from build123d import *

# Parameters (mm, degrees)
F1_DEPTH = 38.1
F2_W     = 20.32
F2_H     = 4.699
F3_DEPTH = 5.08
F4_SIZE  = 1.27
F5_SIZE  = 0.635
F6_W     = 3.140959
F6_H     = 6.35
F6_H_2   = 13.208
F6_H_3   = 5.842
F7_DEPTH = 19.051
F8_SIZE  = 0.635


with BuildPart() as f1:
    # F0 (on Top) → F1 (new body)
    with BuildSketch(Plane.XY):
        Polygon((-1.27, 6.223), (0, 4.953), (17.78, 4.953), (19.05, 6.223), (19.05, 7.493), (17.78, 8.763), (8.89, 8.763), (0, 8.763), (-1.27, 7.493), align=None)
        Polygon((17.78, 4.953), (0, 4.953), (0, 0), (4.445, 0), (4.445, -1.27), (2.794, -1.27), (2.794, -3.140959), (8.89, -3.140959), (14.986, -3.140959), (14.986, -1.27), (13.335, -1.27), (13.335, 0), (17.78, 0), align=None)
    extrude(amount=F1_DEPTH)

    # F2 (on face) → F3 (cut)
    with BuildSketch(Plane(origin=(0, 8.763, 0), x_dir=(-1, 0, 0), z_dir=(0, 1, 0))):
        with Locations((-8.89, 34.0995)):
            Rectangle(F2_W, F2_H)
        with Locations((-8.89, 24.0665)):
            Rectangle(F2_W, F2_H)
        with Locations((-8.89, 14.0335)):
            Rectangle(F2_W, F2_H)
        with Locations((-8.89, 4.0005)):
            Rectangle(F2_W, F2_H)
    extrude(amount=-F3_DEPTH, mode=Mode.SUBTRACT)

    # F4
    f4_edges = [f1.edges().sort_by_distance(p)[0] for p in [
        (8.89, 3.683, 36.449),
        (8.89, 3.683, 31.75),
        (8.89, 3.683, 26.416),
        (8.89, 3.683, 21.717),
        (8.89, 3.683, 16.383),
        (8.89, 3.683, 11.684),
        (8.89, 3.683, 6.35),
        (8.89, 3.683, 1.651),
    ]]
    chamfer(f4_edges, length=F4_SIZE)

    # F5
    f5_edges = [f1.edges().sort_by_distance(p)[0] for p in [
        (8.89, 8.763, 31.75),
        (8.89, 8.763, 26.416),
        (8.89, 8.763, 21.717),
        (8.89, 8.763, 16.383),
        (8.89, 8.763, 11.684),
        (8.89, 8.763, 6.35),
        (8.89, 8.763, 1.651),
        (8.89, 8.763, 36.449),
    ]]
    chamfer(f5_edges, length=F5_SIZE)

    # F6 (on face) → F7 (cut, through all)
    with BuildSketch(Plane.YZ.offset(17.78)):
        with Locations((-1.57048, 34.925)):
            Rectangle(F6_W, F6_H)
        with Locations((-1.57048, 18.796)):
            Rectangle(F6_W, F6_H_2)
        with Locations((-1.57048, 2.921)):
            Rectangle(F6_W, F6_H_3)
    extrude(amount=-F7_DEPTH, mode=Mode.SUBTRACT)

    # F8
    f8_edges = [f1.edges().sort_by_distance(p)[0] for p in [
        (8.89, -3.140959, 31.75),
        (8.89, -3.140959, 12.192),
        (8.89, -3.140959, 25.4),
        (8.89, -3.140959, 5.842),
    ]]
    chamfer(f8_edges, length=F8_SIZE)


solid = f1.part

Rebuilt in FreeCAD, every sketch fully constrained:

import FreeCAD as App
import Part
import Sketcher
from FreeCAD import Vector
Q = App.Units.Quantity


def edges_at(feature, points):
    """Names of the edges that pass closest to the given points."""
    edges = feature.Shape.Edges
    near = lambda p: min(range(len(edges)), key=lambda i: edges[i].distToShape(Part.Vertex(*p))[0])
    return sorted({f"Edge{near(p) + 1}" for p in points})

doc = App.newDocument("Part")
body = doc.addObject("PartDesign::Body", "Body")

sketch1 = body.newObject("Sketcher::SketchObject", "Sketch")
sketch1.AttachmentSupport = (doc.getObject("XY_Plane"), [""])
sketch1.MapMode = "FlatFace"
sketch1.addGeometry([
    Part.LineSegment(Vector(-1.3, 6.2, 0), Vector(0, 5, 0)),
    Part.LineSegment(Vector(0, 5, 0), Vector(0, 0, 0)),
    Part.LineSegment(Vector(0, 0, 0), Vector(4.4, 0, 0)),
    Part.LineSegment(Vector(4.4, 0, 0), Vector(4.4, -1.3, 0)),
    Part.LineSegment(Vector(4.4, -1.3, 0), Vector(2.8, -1.3, 0)),
    Part.LineSegment(Vector(2.8, -1.3, 0), Vector(2.8, -3.1, 0)),
    Part.LineSegment(Vector(2.8, -3.1, 0), Vector(15, -3.1, 0)),
    Part.LineSegment(Vector(15, -3.1, 0), Vector(15, -1.3, 0)),
    Part.LineSegment(Vector(15, -1.3, 0), Vector(13.3, -1.3, 0)),
    Part.LineSegment(Vector(13.3, -1.3, 0), Vector(13.3, 0, 0)),
    Part.LineSegment(Vector(13.3, 0, 0), Vector(17.8, 0, 0)),
    Part.LineSegment(Vector(17.8, 0, 0), Vector(17.8, 5, 0)),
    Part.LineSegment(Vector(17.8, 5, 0), Vector(19.1, 6.2, 0)),
    Part.LineSegment(Vector(19.1, 6.2, 0), Vector(19.1, 7.5, 0)),
    Part.LineSegment(Vector(19.1, 7.5, 0), Vector(17.8, 8.8, 0)),
    Part.LineSegment(Vector(17.8, 8.8, 0), Vector(0, 8.8, 0)),
    Part.LineSegment(Vector(0, 8.8, 0), Vector(-1.3, 7.5, 0)),
    Part.LineSegment(Vector(-1.3, 7.5, 0), Vector(-1.3, 6.2, 0)),
], False)
sketch1.addConstraint([
    Sketcher.Constraint("Coincident", 0, 2, 1, 1),
    Sketcher.Constraint("Coincident", 1, 2, 2, 1),
    Sketcher.Constraint("Coincident", 2, 2, 3, 1),
    Sketcher.Constraint("Coincident", 3, 2, 4, 1),
    Sketcher.Constraint("Coincident", 4, 2, 5, 1),
    Sketcher.Constraint("Coincident", 5, 2, 6, 1),
    Sketcher.Constraint("Coincident", 6, 2, 7, 1),
    Sketcher.Constraint("Coincident", 7, 2, 8, 1),
    Sketcher.Constraint("Coincident", 8, 2, 9, 1),
    Sketcher.Constraint("Coincident", 9, 2, 10, 1),
    Sketcher.Constraint("Coincident", 10, 2, 11, 1),
    Sketcher.Constraint("Coincident", 11, 2, 12, 1),
    Sketcher.Constraint("Coincident", 12, 2, 13, 1),
    Sketcher.Constraint("Coincident", 13, 2, 14, 1),
    Sketcher.Constraint("Coincident", 14, 2, 15, 1),
    Sketcher.Constraint("Coincident", 15, 2, 16, 1),
    Sketcher.Constraint("Coincident", 16, 2, 17, 1),
    Sketcher.Constraint("Coincident", 17, 2, 0, 1),
    Sketcher.Constraint("Vertical", 1),
    Sketcher.Constraint("Horizontal", 2),
    Sketcher.Constraint("Vertical", 3),
    Sketcher.Constraint("Horizontal", 4),
    Sketcher.Constraint("Vertical", 5),
    Sketcher.Constraint("Horizontal", 6),
    Sketcher.Constraint("Vertical", 7),
    Sketcher.Constraint("Horizontal", 8),
    Sketcher.Constraint("Vertical", 9),
    Sketcher.Constraint("Horizontal", 10),
    Sketcher.Constraint("Vertical", 11),
    Sketcher.Constraint("Vertical", 13),
    Sketcher.Constraint("Horizontal", 15),
    Sketcher.Constraint("Vertical", 17),
    Sketcher.Constraint("Coincident", 1, 2, -1, 1),
    Sketcher.Constraint("PointOnObject", 9, 2, -1),
    Sketcher.Constraint("PointOnObject", 15, 2, -2),
    Sketcher.Constraint("Perpendicular", 0, 12),
    Sketcher.Constraint("Perpendicular", 12, 14),
    Sketcher.Constraint("Perpendicular", 14, 16),
    Sketcher.Constraint("Horizontal", 4, 2, 7, 2),
    Sketcher.Constraint("Horizontal", 0, 2, 11, 2),
    Sketcher.Constraint("Horizontal", 13, 2, 16, 2),
    Sketcher.Constraint("Horizontal", 12, 2, 17, 2),
    Sketcher.Constraint("Vertical", 11, 2, 14, 2),
    Sketcher.Constraint("Equal", 4, 8),
    Sketcher.Constraint("Equal", 2, 10),
    Sketcher.Constraint("Equal", 9, 13),
    Sketcher.Constraint("DistanceX", 15, 2, 15, 1, Q("0.7 in")),
    Sketcher.Constraint("DistanceX", 6, 1, 6, 2, Q("0.48 in")),
    Sketcher.Constraint("DistanceY", 3, 2, 3, 1, Q("0.05 in")),
    Sketcher.Constraint("DistanceY", 11, 2, 13, 2, Q("0.1 in")),
    Sketcher.Constraint("DistanceX", 2, 1, 2, 2, Q("0.175 in")),
    Sketcher.Constraint("DistanceY", 1, 2, 1, 1, Q("0.195 in")),
    Sketcher.Constraint("DistanceY", 5, 2, 5, 1, Q("1.870959 mm")),
])
pad1 = body.newObject("PartDesign::Pad", "Pad")
pad1.Profile = sketch1
pad1.Length = Q("1.5 in")

sketch2 = body.newObject("Sketcher::SketchObject", "Sketch001")
sketch2.AttachmentSupport = (doc.getObject("XZ_Plane"), [""])
sketch2.MapMode = "FlatFace"
sketch2.AttachmentOffset = App.Placement(Vector(0, 0, -0.345 * 25.4), App.Rotation())
sketch2.addGeometry([
    Part.LineSegment(Vector(19.1, 36.4, 0), Vector(19.1, 31.8, 0)),
    Part.LineSegment(Vector(19.1, 31.8, 0), Vector(-1.3, 31.8, 0)),
    Part.LineSegment(Vector(-1.3, 31.8, 0), Vector(-1.3, 36.4, 0)),
    Part.LineSegment(Vector(-1.3, 36.4, 0), Vector(19.1, 36.4, 0)),
    Part.LineSegment(Vector(19.1, 26.4, 0), Vector(19.1, 21.7, 0)),
    Part.LineSegment(Vector(19.1, 21.7, 0), Vector(-1.3, 21.7, 0)),
    Part.LineSegment(Vector(-1.3, 21.7, 0), Vector(-1.3, 26.4, 0)),
    Part.LineSegment(Vector(-1.3, 26.4, 0), Vector(19.1, 26.4, 0)),
    Part.LineSegment(Vector(19.1, 16.4, 0), Vector(19.1, 11.7, 0)),
    Part.LineSegment(Vector(19.1, 11.7, 0), Vector(-1.3, 11.7, 0)),
    Part.LineSegment(Vector(-1.3, 11.7, 0), Vector(-1.3, 16.4, 0)),
    Part.LineSegment(Vector(-1.3, 16.4, 0), Vector(19.1, 16.4, 0)),
    Part.LineSegment(Vector(19.1, 6.3, 0), Vector(19.1, 1.7, 0)),
    Part.LineSegment(Vector(19.1, 1.7, 0), Vector(-1.3, 1.7, 0)),
    Part.LineSegment(Vector(-1.3, 1.7, 0), Vector(-1.3, 6.3, 0)),
    Part.LineSegment(Vector(-1.3, 6.3, 0), Vector(19.1, 6.3, 0)),
], False)
sketch2.addConstraint([
    Sketcher.Constraint("Coincident", 0, 2, 1, 1),
    Sketcher.Constraint("Coincident", 1, 2, 2, 1),
    Sketcher.Constraint("Coincident", 2, 2, 3, 1),
    Sketcher.Constraint("Coincident", 3, 2, 0, 1),
    Sketcher.Constraint("Coincident", 4, 2, 5, 1),
    Sketcher.Constraint("Coincident", 5, 2, 6, 1),
    Sketcher.Constraint("Coincident", 6, 2, 7, 1),
    Sketcher.Constraint("Coincident", 7, 2, 4, 1),
    Sketcher.Constraint("Coincident", 8, 2, 9, 1),
    Sketcher.Constraint("Coincident", 9, 2, 10, 1),
    Sketcher.Constraint("Coincident", 10, 2, 11, 1),
    Sketcher.Constraint("Coincident", 11, 2, 8, 1),
    Sketcher.Constraint("Coincident", 12, 2, 13, 1),
    Sketcher.Constraint("Coincident", 13, 2, 14, 1),
    Sketcher.Constraint("Coincident", 14, 2, 15, 1),
    Sketcher.Constraint("Coincident", 15, 2, 12, 1),
    Sketcher.Constraint("Vertical", 0),
    Sketcher.Constraint("Horizontal", 1),
    Sketcher.Constraint("Vertical", 2),
    Sketcher.Constraint("Horizontal", 3),
    Sketcher.Constraint("Vertical", 4),
    Sketcher.Constraint("Horizontal", 5),
    Sketcher.Constraint("Vertical", 6),
    Sketcher.Constraint("Horizontal", 7),
    Sketcher.Constraint("Vertical", 8),
    Sketcher.Constraint("Horizontal", 9),
    Sketcher.Constraint("Vertical", 10),
    Sketcher.Constraint("Horizontal", 11),
    Sketcher.Constraint("Vertical", 12),
    Sketcher.Constraint("Horizontal", 13),
    Sketcher.Constraint("Vertical", 14),
    Sketcher.Constraint("Horizontal", 15),
    Sketcher.Constraint("Vertical", 3, 2, 4, 2),
    Sketcher.Constraint("Vertical", 2, 2, 5, 2),
    Sketcher.Constraint("Vertical", 7, 2, 8, 2),
    Sketcher.Constraint("Vertical", 6, 2, 9, 2),
    Sketcher.Constraint("Vertical", 11, 2, 12, 2),
    Sketcher.Constraint("Vertical", 10, 2, 13, 2),
    Sketcher.Constraint("Equal", 2, 4),
    Sketcher.Constraint("Equal", 6, 8),
    Sketcher.Constraint("Equal", 10, 12),
    Sketcher.Constraint("DistanceX", 1, 2, 1, 1, Q("0.8 in")),
    Sketcher.Constraint("DistanceY", 0, 2, 0, 1, Q("0.185 in")),
    Sketcher.Constraint("DistanceX", -1, 1, 0, 2, Q("0.75 in")),
    Sketcher.Constraint("DistanceY", -1, 1, 0, 2, Q("1.25 in")),
    Sketcher.Constraint("DistanceY", -1, 1, 6, 2, Q("1.04 in")),
    Sketcher.Constraint("DistanceY", -1, 1, 8, 2, Q("0.46 in")),
    Sketcher.Constraint("DistanceY", -1, 1, 14, 2, Q("0.25 in")),
])
pocket1 = body.newObject("PartDesign::Pocket", "Pocket")
pocket1.Profile = sketch2
pocket1.Length = Q("0.2 in")
pocket1.Reversed = True
doc.recompute()

chamfer = body.newObject("PartDesign::Chamfer", "Chamfer")
chamfer.Base = (pocket1, edges_at(pocket1, [
    (8.89, 3.683, 36.449),
    (8.89, 3.683, 31.75),
    (8.89, 3.683, 26.416),
    (8.89, 3.683, 21.717),
    (8.89, 3.683, 16.383),
    (8.89, 3.683, 11.684),
    (8.89, 3.683, 6.35),
    (8.89, 3.683, 1.651),
]))
chamfer.Size = Q("0.05 in")
doc.recompute()

chamfer2 = body.newObject("PartDesign::Chamfer", "Chamfer001")
chamfer2.Base = (chamfer, edges_at(chamfer, [
    (8.89, 8.763, 31.75),
    (8.89, 8.763, 26.416),
    (8.89, 8.763, 21.717),
    (8.89, 8.763, 16.383),
    (8.89, 8.763, 11.684),
    (8.89, 8.763, 6.35),
    (8.89, 8.763, 1.651),
    (8.89, 8.763, 36.449),
]))
chamfer2.Size = Q("0.025 in")

sketch3 = body.newObject("Sketcher::SketchObject", "Sketch002")
sketch3.AttachmentSupport = (doc.getObject("YZ_Plane"), [""])
sketch3.MapMode = "FlatFace"
sketch3.AttachmentOffset = App.Placement(Vector(0, 0, 0.7 * 25.4), App.Rotation())
sketch3.addGeometry([
    Part.LineSegment(Vector(-3.1, 38.1, 0), Vector(-3.1, 31.8, 0)),
    Part.LineSegment(Vector(-3.1, 31.8, 0), Vector(0, 31.8, 0)),
    Part.LineSegment(Vector(0, 31.8, 0), Vector(0, 38.1, 0)),
    Part.LineSegment(Vector(0, 38.1, 0), Vector(-3.1, 38.1, 0)),
    Part.LineSegment(Vector(-3.1, 25.4, 0), Vector(-3.1, 12.2, 0)),
    Part.LineSegment(Vector(-3.1, 12.2, 0), Vector(0, 12.2, 0)),
    Part.LineSegment(Vector(0, 12.2, 0), Vector(0, 25.4, 0)),
    Part.LineSegment(Vector(0, 25.4, 0), Vector(-3.1, 25.4, 0)),
    Part.LineSegment(Vector(-3.1, 5.8, 0), Vector(-3.1, 0, 0)),
    Part.LineSegment(Vector(-3.1, 0, 0), Vector(0, 0, 0)),
    Part.LineSegment(Vector(0, 0, 0), Vector(0, 5.8, 0)),
    Part.LineSegment(Vector(0, 5.8, 0), Vector(-3.1, 5.8, 0)),
], False)
sketch3.addConstraint([
    Sketcher.Constraint("Coincident", 0, 2, 1, 1),
    Sketcher.Constraint("Coincident", 1, 2, 2, 1),
    Sketcher.Constraint("Coincident", 2, 2, 3, 1),
    Sketcher.Constraint("Coincident", 3, 2, 0, 1),
    Sketcher.Constraint("Coincident", 4, 2, 5, 1),
    Sketcher.Constraint("Coincident", 5, 2, 6, 1),
    Sketcher.Constraint("Coincident", 6, 2, 7, 1),
    Sketcher.Constraint("Coincident", 7, 2, 4, 1),
    Sketcher.Constraint("Coincident", 8, 2, 9, 1),
    Sketcher.Constraint("Coincident", 9, 2, 10, 1),
    Sketcher.Constraint("Coincident", 10, 2, 11, 1),
    Sketcher.Constraint("Coincident", 11, 2, 8, 1),
    Sketcher.Constraint("Vertical", 0),
    Sketcher.Constraint("Horizontal", 1),
    Sketcher.Constraint("Vertical", 2),
    Sketcher.Constraint("Horizontal", 3),
    Sketcher.Constraint("Vertical", 4),
    Sketcher.Constraint("Horizontal", 5),
    Sketcher.Constraint("Vertical", 6),
    Sketcher.Constraint("Horizontal", 7),
    Sketcher.Constraint("Vertical", 8),
    Sketcher.Constraint("Horizontal", 9),
    Sketcher.Constraint("Vertical", 10),
    Sketcher.Constraint("Horizontal", 11),
    Sketcher.Constraint("Coincident", 9, 2, -1, 1),
    Sketcher.Constraint("PointOnObject", 1, 2, -2),
    Sketcher.Constraint("PointOnObject", 5, 2, -2),
    Sketcher.Constraint("Vertical", 3, 2, 4, 2),
    Sketcher.Constraint("Vertical", 7, 2, 8, 2),
    Sketcher.Constraint("DistanceY", -1, 1, 6, 2, Q("1 in")),
    Sketcher.Constraint("DistanceY", 0, 2, 0, 1, Q("0.25 in")),
    Sketcher.Constraint("DistanceY", 4, 2, 4, 1, Q("0.52 in")),
    Sketcher.Constraint("DistanceY", 8, 2, 8, 1, Q("0.23 in")),
    Sketcher.Constraint("DistanceY", -1, 1, 2, 2, Q("1.5 in")),
    Sketcher.Constraint("DistanceX", 1, 1, 1, 2, Q("3.140959 mm")),
])
pocket2 = body.newObject("PartDesign::Pocket", "Pocket001")
pocket2.Profile = sketch3
pocket2.Type = "ThroughAll"
doc.recompute()

chamfer3 = body.newObject("PartDesign::Chamfer", "Chamfer002")
chamfer3.Base = (pocket2, edges_at(pocket2, [
    (8.89, -3.141, 31.75),
    (8.89, -3.141, 12.192),
    (8.89, -3.141, 25.4),
    (8.89, -3.141, 5.842),
]))
chamfer3.Size = Q("0.025 in")

doc.recompute()
